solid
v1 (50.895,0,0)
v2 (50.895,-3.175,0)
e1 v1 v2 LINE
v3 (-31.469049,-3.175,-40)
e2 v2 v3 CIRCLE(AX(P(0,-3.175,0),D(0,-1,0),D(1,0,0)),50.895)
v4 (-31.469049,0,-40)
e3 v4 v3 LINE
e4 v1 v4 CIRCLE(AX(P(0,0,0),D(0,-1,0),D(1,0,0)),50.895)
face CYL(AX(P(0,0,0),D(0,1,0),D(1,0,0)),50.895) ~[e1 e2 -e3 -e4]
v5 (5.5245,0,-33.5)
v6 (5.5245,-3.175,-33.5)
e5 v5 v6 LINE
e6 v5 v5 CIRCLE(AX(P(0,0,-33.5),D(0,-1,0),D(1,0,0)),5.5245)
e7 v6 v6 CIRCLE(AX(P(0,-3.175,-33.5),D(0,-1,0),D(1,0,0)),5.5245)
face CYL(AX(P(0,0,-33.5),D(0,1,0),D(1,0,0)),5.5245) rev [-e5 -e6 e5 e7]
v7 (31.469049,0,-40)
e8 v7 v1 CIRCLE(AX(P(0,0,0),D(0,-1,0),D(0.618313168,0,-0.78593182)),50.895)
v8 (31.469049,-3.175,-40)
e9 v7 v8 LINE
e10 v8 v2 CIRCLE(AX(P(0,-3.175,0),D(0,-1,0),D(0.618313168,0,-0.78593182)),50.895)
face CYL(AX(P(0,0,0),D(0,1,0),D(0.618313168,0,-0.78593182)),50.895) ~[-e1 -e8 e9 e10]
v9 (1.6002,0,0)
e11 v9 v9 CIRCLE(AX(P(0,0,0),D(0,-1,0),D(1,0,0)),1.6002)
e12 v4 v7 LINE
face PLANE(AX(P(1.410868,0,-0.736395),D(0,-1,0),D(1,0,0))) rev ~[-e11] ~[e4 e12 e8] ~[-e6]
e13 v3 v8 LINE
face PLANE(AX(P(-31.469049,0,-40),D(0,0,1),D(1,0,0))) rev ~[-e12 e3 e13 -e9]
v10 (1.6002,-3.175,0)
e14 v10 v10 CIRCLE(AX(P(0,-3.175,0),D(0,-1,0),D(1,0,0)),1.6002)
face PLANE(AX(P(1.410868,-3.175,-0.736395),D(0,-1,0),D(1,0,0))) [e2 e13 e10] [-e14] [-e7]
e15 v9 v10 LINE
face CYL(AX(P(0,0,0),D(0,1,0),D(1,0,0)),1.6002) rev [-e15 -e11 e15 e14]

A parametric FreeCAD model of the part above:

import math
import FreeCAD as App
import Part
import Sketcher
Q = App.Units.Quantity

doc = App.newDocument("Part")
params = doc.addObject("Spreadsheet::Sheet", "Params")
for row, (alias, value) in enumerate([
    ("sketch1_diameter", "0.435 in"),
    ("sketch1_diameter2", "0.126 in"),
    ("pad1_length", "0.125 in"),
], start=1):
    params.set(f"A{row}", alias)
    params.set(f"B{row}", "=" + value)
    params.setAlias(f"B{row}", alias)

body = doc.addObject("PartDesign::Body", "Body")

# Sketch on XZ plane
sketch1 = body.newObject("Sketcher::SketchObject", "Sketch")
sketch1.AttachmentSupport = (doc.getObject("XZ_Plane"), [""])
sketch1.MapMode = "FlatFace"
sketch1.addGeometry(Part.ArcOfCircle(Part.Circle(App.Vector(0, 0, 0), App.Vector(0, 0, 1), 50.9), math.radians(-52), math.radians(0)), False)
sketch1.addGeometry(Part.ArcOfCircle(Part.Circle(App.Vector(0, 0, 0), App.Vector(0, 0, 1), 50.9), math.radians(0), math.radians(232)), False)
sketch1.addGeometry(Part.LineSegment(App.Vector(-31.5, -40, 0), App.Vector(31.5, -40, 0)), False)
sketch1.addGeometry(Part.Circle(App.Vector(0, -33.5, 0), App.Vector(0, 0, 1), 5.5), False)
sketch1.addGeometry(Part.Circle(App.Vector(0, 0, 0), App.Vector(0, 0, 1), 1.6), False)
sketch1.addConstraint(Sketcher.Constraint("Tangent", 0, 2, 1, 1))
sketch1.addConstraint(Sketcher.Constraint("Coincident", 1, 2, 2, 1))
sketch1.addConstraint(Sketcher.Constraint("Coincident", 2, 2, 0, 1))
sketch1.addConstraint(Sketcher.Constraint("Horizontal", 2))
sketch1.addConstraint(Sketcher.Constraint("Coincident", 0, 3, -1, 1))
sketch1.addConstraint(Sketcher.Constraint("Coincident", 4, 3, -1, 1))
sketch1.addConstraint(Sketcher.Constraint("Equal", 0, 1))
sketch1.addConstraint(Sketcher.Constraint("PointOnObject", 3, 3, -2))
sketch1.addConstraint(Sketcher.Constraint("PointOnObject", 0, 2, -1))
sketch1.addConstraint(Sketcher.Constraint("Diameter", 3, Q("0.435 in")))
sketch1.addConstraint(Sketcher.Constraint("Diameter", 4, Q("0.126 in")))
sketch1.addConstraint(Sketcher.Constraint("Radius", 0, 50.895))
sketch1.addConstraint(Sketcher.Constraint("DistanceY", 3, 3, -1, 1, 33.5))
sketch1.addConstraint(Sketcher.Constraint("DistanceY", 1, 2, -1, 1, 40.0))
sketch1.setExpression("Constraints[9]", "Params.sketch1_diameter")
sketch1.setExpression("Constraints[10]", "Params.sketch1_diameter2")
pad1 = body.newObject("PartDesign::Pad", "Pad")
pad1.Profile = sketch1
pad1.setExpression("Length", "Params.pad1_length")

doc.recompute()
